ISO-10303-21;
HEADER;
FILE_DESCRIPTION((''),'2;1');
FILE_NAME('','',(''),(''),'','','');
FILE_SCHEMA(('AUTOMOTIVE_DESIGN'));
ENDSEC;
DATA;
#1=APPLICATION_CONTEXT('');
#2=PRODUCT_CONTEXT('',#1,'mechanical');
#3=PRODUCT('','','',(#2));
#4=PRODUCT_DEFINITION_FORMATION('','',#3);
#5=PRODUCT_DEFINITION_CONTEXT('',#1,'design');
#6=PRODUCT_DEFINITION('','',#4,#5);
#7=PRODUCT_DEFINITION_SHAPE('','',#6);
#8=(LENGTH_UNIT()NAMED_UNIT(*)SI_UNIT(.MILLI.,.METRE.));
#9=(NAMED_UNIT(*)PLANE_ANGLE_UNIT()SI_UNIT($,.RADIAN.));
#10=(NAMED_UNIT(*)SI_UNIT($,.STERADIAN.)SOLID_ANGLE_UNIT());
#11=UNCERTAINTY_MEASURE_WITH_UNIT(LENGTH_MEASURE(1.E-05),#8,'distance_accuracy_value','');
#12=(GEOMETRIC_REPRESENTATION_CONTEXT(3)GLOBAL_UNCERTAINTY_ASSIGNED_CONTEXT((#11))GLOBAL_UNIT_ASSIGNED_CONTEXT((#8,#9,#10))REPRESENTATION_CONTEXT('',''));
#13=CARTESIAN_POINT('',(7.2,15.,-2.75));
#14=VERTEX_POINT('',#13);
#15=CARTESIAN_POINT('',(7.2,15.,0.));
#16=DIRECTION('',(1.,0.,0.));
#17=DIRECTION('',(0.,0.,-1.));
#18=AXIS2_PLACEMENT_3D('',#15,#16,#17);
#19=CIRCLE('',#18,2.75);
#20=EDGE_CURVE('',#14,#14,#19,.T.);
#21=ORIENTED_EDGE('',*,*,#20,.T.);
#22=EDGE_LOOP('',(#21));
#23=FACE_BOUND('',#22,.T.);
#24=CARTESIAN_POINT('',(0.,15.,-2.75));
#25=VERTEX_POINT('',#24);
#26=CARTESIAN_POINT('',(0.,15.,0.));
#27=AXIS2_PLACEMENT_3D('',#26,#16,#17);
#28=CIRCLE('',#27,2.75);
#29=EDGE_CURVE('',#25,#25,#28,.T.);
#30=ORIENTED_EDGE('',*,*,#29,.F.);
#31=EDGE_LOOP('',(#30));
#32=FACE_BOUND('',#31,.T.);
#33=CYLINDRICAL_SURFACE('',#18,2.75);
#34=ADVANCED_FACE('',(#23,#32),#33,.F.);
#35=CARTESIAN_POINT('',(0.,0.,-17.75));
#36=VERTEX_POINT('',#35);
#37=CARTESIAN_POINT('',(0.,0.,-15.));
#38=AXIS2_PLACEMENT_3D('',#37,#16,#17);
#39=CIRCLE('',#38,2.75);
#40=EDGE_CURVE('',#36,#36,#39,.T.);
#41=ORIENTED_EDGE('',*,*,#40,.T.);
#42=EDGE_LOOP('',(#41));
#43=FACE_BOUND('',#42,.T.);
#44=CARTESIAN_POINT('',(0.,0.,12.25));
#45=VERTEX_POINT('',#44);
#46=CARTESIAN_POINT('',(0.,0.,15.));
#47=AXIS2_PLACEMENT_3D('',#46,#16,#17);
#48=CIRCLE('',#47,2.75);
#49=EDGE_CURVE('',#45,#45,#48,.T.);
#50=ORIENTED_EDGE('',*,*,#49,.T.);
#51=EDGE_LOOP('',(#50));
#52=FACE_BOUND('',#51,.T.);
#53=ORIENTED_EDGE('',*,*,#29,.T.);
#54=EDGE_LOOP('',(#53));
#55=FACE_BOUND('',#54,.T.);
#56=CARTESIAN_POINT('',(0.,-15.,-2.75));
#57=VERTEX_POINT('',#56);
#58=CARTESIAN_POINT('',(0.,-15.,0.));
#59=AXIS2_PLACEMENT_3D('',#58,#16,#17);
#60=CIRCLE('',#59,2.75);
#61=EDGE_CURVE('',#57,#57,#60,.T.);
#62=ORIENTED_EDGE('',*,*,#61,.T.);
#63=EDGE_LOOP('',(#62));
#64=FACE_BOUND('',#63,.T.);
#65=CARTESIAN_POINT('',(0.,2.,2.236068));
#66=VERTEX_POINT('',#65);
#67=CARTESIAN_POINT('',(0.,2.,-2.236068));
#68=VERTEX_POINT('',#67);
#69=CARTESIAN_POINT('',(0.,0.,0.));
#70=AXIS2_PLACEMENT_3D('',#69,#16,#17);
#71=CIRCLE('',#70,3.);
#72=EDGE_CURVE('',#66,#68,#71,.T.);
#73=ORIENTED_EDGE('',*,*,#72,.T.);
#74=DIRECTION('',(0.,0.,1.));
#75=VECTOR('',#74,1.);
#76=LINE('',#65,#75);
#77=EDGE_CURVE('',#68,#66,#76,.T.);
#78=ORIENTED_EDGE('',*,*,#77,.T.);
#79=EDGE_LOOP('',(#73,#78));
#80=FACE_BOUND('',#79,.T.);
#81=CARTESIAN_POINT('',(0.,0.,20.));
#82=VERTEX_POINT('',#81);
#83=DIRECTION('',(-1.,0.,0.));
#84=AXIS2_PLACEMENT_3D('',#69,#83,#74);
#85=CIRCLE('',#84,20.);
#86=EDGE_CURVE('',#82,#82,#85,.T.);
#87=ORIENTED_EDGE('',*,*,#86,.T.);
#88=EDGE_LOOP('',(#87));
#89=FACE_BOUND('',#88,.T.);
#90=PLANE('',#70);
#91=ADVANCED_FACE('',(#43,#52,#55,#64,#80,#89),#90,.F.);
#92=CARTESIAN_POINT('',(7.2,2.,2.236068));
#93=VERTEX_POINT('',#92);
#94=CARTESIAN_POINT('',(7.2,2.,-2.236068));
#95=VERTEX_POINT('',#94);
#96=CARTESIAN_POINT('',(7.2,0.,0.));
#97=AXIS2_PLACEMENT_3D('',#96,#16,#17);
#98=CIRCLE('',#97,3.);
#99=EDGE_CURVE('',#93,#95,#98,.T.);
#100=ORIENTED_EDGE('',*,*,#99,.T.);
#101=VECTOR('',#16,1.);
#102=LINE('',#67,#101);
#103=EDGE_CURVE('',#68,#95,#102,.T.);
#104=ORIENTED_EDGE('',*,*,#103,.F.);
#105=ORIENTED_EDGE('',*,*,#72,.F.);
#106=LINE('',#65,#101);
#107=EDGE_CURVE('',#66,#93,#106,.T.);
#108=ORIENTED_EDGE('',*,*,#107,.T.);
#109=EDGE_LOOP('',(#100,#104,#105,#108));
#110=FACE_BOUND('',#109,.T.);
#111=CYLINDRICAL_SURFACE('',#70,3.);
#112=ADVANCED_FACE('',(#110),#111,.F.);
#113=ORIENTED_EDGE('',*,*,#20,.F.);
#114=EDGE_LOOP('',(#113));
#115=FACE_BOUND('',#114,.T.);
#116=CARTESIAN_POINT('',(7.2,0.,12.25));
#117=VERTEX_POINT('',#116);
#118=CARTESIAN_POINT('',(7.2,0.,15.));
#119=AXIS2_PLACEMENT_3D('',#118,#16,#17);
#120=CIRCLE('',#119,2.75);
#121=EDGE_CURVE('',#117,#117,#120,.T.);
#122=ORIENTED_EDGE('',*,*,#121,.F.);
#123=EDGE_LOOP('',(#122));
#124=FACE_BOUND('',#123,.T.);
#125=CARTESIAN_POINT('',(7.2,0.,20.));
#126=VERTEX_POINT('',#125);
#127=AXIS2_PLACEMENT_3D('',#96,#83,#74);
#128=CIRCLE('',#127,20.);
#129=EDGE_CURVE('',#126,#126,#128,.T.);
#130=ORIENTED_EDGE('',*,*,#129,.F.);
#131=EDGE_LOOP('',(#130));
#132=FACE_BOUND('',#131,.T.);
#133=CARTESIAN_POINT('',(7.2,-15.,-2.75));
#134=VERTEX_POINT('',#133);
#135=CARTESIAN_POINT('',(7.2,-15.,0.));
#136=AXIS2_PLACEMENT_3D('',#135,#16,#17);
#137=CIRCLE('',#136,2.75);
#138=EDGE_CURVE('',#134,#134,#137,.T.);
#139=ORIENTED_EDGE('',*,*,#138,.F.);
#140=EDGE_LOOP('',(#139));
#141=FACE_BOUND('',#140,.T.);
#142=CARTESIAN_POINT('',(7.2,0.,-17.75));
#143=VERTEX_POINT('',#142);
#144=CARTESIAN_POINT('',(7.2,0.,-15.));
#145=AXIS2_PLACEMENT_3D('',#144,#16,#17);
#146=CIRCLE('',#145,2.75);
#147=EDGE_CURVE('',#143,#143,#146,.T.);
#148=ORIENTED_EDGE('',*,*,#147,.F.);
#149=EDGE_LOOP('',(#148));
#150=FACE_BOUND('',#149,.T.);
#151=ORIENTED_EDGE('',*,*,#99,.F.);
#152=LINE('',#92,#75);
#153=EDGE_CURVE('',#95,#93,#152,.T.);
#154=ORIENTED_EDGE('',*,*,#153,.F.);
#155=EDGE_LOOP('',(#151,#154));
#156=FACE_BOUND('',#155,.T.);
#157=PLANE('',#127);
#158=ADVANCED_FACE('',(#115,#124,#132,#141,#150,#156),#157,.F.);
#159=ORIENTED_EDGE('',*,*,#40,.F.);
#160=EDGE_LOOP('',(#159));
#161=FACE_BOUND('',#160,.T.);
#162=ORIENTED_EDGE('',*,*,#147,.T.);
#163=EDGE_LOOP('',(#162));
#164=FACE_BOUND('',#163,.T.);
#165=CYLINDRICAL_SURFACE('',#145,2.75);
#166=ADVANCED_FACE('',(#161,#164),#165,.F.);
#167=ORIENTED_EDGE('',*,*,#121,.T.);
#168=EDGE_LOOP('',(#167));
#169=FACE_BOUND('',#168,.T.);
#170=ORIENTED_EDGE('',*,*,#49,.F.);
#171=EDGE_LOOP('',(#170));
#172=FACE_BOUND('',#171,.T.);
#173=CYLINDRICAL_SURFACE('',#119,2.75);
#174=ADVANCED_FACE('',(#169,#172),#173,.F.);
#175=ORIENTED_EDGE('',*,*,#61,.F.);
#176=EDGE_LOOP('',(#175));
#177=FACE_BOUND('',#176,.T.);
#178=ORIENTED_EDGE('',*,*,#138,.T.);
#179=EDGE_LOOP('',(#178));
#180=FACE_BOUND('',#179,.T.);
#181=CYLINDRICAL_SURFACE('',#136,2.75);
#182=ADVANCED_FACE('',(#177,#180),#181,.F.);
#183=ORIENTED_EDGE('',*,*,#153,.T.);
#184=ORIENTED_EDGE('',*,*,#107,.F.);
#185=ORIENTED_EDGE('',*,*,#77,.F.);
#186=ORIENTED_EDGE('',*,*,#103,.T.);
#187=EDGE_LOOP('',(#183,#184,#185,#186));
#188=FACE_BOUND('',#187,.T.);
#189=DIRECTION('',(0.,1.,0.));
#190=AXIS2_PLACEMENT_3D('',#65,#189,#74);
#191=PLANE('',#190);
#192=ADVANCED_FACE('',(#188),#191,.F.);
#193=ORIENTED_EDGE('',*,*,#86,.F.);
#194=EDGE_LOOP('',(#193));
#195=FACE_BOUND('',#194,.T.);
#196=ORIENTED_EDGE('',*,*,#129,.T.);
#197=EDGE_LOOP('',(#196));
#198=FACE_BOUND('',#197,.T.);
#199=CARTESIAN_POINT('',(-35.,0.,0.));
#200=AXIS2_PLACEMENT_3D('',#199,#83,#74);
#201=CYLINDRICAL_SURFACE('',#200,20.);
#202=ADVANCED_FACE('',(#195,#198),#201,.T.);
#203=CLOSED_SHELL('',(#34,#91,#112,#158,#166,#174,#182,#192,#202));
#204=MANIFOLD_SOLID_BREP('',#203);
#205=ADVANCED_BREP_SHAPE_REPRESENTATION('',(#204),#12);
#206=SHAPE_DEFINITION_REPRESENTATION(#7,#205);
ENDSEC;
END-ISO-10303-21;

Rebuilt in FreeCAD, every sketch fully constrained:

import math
import FreeCAD as App
import Part
import Sketcher
from FreeCAD import Vector

doc = App.newDocument("Part")
body = doc.addObject("PartDesign::Body", "Body")

# Sketch on XY plane
sketch1 = doc.addObject("Sketcher::SketchObject", "Sketch")
body.addObject(sketch1)
sketch1.AttachmentSupport = (doc.XY_Plane, [""])
sketch1.MapMode = "FlatFace"
sketch1.addGeometry([
    Part.LineSegment(Vector(0, 20, 0), Vector(0, 0, 0)),
    Part.LineSegment(Vector(0, 0, 0), Vector(7.2, 0, 0)),
    Part.LineSegment(Vector(7.2, 0, 0), Vector(7.2, 20, 0)),
    Part.LineSegment(Vector(7.2, 20, 0), Vector(0, 20, 0)),
], False)
sketch1.addConstraint([
    Sketcher.Constraint("Coincident", 0, 2, 1, 1),
    Sketcher.Constraint("Coincident", 1, 2, 2, 1),
    Sketcher.Constraint("Coincident", 2, 2, 3, 1),
    Sketcher.Constraint("Coincident", 3, 2, 0, 1),
    Sketcher.Constraint("Vertical", 0),
    Sketcher.Constraint("Horizontal", 1),
    Sketcher.Constraint("Vertical", 2),
    Sketcher.Constraint("Horizontal", 3),
    Sketcher.Constraint("Coincident", 0, 2, -1, 1),
    Sketcher.Constraint("DistanceY", 0, 2, 0, 1, 20.0),
    Sketcher.Constraint("DistanceX", 1, 1, 1, 2, 7.2),
])
revolution = doc.addObject("PartDesign::Revolution", "Revolution")
body.addObject(revolution)
revolution.Profile = sketch1
revolution.ReferenceAxis = (sketch1, ["H_Axis"])
revolution.Angle = 360

# Sketch on YZ plane
sketch2 = doc.addObject("Sketcher::SketchObject", "Sketch001")
body.addObject(sketch2)
sketch2.AttachmentSupport = (doc.YZ_Plane, [""])
sketch2.MapMode = "FlatFace"
sketch2.AttachmentOffset = App.Placement(Vector(0, 0, 7.2), App.Rotation())
sketch2.addGeometry([
    Part.LineSegment(Vector(2, -2.236068, 0), Vector(2, 2.236068, 0)),
    Part.ArcOfCircle(Part.Circle(Vector(0, 0, 0), Vector(0, 0, 1), 3), math.radians(48.189685), math.radians(311.810315)),
], False)
sketch2.addConstraint([
    Sketcher.Constraint("Coincident", 0, 1, 1, 2),
    Sketcher.Constraint("Coincident", 1, 1, 0, 2),
    Sketcher.Constraint("Vertical", 0),
    Sketcher.Constraint("Coincident", 1, 3, -1, 1),
    Sketcher.Constraint("Radius", 1, 3.0),
    Sketcher.Constraint("DistanceX", -1, 1, 0, 1, 2.0),
])
pocket1 = doc.addObject("PartDesign::Pocket", "Pocket")
body.addObject(pocket1)
pocket1.Profile = sketch2
pocket1.Type = "ThroughAll"

# Sketch on YZ plane
sketch3 = doc.addObject("Sketcher::SketchObject", "Sketch002")
body.addObject(sketch3)
sketch3.AttachmentSupport = (doc.YZ_Plane, [""])
sketch3.MapMode = "FlatFace"
sketch3.AttachmentOffset = App.Placement(Vector(0, 0, 7.2), App.Rotation())
sketch3.addGeometry([
    Part.Circle(Vector(15, 0, 0), Vector(0, 0, 1), 2.75),
    Part.Circle(Vector(0, -15, 0), Vector(0, 0, 1), 2.75),
    Part.Circle(Vector(-15, 0, 0), Vector(0, 0, 1), 2.75),
    Part.Circle(Vector(0, 15, 0), Vector(0, 0, 1), 2.75),
], False)
sketch3.addConstraint([
    Sketcher.Constraint("Equal", 0, 1),
    Sketcher.Constraint("Equal", 1, 2),
    Sketcher.Constraint("Equal", 2, 3),
    Sketcher.Constraint("Symmetric", 0, 3, 2, 3, -1, 1),
    Sketcher.Constraint("Symmetric", 1, 3, 3, 3, -1, 1),
    Sketcher.Constraint("PointOnObject", 0, 3, -1),
    Sketcher.Constraint("PointOnObject", 1, 3, -2),
    Sketcher.Constraint("Diameter", 0, 5.5),
    Sketcher.Constraint("DistanceX", -1, 1, 0, 3, 15.0),
    Sketcher.Constraint("DistanceY", 1, 3, -1, 1, 15.0),
])
doc.recompute()
hole = doc.addObject("PartDesign::Hole", "Hole")
body.addObject(hole)
hole.Profile = sketch3
hole.ThreadType = "None"
hole.Diameter = 5.5
hole.DepthType = "ThroughAll"

doc.recompute()
